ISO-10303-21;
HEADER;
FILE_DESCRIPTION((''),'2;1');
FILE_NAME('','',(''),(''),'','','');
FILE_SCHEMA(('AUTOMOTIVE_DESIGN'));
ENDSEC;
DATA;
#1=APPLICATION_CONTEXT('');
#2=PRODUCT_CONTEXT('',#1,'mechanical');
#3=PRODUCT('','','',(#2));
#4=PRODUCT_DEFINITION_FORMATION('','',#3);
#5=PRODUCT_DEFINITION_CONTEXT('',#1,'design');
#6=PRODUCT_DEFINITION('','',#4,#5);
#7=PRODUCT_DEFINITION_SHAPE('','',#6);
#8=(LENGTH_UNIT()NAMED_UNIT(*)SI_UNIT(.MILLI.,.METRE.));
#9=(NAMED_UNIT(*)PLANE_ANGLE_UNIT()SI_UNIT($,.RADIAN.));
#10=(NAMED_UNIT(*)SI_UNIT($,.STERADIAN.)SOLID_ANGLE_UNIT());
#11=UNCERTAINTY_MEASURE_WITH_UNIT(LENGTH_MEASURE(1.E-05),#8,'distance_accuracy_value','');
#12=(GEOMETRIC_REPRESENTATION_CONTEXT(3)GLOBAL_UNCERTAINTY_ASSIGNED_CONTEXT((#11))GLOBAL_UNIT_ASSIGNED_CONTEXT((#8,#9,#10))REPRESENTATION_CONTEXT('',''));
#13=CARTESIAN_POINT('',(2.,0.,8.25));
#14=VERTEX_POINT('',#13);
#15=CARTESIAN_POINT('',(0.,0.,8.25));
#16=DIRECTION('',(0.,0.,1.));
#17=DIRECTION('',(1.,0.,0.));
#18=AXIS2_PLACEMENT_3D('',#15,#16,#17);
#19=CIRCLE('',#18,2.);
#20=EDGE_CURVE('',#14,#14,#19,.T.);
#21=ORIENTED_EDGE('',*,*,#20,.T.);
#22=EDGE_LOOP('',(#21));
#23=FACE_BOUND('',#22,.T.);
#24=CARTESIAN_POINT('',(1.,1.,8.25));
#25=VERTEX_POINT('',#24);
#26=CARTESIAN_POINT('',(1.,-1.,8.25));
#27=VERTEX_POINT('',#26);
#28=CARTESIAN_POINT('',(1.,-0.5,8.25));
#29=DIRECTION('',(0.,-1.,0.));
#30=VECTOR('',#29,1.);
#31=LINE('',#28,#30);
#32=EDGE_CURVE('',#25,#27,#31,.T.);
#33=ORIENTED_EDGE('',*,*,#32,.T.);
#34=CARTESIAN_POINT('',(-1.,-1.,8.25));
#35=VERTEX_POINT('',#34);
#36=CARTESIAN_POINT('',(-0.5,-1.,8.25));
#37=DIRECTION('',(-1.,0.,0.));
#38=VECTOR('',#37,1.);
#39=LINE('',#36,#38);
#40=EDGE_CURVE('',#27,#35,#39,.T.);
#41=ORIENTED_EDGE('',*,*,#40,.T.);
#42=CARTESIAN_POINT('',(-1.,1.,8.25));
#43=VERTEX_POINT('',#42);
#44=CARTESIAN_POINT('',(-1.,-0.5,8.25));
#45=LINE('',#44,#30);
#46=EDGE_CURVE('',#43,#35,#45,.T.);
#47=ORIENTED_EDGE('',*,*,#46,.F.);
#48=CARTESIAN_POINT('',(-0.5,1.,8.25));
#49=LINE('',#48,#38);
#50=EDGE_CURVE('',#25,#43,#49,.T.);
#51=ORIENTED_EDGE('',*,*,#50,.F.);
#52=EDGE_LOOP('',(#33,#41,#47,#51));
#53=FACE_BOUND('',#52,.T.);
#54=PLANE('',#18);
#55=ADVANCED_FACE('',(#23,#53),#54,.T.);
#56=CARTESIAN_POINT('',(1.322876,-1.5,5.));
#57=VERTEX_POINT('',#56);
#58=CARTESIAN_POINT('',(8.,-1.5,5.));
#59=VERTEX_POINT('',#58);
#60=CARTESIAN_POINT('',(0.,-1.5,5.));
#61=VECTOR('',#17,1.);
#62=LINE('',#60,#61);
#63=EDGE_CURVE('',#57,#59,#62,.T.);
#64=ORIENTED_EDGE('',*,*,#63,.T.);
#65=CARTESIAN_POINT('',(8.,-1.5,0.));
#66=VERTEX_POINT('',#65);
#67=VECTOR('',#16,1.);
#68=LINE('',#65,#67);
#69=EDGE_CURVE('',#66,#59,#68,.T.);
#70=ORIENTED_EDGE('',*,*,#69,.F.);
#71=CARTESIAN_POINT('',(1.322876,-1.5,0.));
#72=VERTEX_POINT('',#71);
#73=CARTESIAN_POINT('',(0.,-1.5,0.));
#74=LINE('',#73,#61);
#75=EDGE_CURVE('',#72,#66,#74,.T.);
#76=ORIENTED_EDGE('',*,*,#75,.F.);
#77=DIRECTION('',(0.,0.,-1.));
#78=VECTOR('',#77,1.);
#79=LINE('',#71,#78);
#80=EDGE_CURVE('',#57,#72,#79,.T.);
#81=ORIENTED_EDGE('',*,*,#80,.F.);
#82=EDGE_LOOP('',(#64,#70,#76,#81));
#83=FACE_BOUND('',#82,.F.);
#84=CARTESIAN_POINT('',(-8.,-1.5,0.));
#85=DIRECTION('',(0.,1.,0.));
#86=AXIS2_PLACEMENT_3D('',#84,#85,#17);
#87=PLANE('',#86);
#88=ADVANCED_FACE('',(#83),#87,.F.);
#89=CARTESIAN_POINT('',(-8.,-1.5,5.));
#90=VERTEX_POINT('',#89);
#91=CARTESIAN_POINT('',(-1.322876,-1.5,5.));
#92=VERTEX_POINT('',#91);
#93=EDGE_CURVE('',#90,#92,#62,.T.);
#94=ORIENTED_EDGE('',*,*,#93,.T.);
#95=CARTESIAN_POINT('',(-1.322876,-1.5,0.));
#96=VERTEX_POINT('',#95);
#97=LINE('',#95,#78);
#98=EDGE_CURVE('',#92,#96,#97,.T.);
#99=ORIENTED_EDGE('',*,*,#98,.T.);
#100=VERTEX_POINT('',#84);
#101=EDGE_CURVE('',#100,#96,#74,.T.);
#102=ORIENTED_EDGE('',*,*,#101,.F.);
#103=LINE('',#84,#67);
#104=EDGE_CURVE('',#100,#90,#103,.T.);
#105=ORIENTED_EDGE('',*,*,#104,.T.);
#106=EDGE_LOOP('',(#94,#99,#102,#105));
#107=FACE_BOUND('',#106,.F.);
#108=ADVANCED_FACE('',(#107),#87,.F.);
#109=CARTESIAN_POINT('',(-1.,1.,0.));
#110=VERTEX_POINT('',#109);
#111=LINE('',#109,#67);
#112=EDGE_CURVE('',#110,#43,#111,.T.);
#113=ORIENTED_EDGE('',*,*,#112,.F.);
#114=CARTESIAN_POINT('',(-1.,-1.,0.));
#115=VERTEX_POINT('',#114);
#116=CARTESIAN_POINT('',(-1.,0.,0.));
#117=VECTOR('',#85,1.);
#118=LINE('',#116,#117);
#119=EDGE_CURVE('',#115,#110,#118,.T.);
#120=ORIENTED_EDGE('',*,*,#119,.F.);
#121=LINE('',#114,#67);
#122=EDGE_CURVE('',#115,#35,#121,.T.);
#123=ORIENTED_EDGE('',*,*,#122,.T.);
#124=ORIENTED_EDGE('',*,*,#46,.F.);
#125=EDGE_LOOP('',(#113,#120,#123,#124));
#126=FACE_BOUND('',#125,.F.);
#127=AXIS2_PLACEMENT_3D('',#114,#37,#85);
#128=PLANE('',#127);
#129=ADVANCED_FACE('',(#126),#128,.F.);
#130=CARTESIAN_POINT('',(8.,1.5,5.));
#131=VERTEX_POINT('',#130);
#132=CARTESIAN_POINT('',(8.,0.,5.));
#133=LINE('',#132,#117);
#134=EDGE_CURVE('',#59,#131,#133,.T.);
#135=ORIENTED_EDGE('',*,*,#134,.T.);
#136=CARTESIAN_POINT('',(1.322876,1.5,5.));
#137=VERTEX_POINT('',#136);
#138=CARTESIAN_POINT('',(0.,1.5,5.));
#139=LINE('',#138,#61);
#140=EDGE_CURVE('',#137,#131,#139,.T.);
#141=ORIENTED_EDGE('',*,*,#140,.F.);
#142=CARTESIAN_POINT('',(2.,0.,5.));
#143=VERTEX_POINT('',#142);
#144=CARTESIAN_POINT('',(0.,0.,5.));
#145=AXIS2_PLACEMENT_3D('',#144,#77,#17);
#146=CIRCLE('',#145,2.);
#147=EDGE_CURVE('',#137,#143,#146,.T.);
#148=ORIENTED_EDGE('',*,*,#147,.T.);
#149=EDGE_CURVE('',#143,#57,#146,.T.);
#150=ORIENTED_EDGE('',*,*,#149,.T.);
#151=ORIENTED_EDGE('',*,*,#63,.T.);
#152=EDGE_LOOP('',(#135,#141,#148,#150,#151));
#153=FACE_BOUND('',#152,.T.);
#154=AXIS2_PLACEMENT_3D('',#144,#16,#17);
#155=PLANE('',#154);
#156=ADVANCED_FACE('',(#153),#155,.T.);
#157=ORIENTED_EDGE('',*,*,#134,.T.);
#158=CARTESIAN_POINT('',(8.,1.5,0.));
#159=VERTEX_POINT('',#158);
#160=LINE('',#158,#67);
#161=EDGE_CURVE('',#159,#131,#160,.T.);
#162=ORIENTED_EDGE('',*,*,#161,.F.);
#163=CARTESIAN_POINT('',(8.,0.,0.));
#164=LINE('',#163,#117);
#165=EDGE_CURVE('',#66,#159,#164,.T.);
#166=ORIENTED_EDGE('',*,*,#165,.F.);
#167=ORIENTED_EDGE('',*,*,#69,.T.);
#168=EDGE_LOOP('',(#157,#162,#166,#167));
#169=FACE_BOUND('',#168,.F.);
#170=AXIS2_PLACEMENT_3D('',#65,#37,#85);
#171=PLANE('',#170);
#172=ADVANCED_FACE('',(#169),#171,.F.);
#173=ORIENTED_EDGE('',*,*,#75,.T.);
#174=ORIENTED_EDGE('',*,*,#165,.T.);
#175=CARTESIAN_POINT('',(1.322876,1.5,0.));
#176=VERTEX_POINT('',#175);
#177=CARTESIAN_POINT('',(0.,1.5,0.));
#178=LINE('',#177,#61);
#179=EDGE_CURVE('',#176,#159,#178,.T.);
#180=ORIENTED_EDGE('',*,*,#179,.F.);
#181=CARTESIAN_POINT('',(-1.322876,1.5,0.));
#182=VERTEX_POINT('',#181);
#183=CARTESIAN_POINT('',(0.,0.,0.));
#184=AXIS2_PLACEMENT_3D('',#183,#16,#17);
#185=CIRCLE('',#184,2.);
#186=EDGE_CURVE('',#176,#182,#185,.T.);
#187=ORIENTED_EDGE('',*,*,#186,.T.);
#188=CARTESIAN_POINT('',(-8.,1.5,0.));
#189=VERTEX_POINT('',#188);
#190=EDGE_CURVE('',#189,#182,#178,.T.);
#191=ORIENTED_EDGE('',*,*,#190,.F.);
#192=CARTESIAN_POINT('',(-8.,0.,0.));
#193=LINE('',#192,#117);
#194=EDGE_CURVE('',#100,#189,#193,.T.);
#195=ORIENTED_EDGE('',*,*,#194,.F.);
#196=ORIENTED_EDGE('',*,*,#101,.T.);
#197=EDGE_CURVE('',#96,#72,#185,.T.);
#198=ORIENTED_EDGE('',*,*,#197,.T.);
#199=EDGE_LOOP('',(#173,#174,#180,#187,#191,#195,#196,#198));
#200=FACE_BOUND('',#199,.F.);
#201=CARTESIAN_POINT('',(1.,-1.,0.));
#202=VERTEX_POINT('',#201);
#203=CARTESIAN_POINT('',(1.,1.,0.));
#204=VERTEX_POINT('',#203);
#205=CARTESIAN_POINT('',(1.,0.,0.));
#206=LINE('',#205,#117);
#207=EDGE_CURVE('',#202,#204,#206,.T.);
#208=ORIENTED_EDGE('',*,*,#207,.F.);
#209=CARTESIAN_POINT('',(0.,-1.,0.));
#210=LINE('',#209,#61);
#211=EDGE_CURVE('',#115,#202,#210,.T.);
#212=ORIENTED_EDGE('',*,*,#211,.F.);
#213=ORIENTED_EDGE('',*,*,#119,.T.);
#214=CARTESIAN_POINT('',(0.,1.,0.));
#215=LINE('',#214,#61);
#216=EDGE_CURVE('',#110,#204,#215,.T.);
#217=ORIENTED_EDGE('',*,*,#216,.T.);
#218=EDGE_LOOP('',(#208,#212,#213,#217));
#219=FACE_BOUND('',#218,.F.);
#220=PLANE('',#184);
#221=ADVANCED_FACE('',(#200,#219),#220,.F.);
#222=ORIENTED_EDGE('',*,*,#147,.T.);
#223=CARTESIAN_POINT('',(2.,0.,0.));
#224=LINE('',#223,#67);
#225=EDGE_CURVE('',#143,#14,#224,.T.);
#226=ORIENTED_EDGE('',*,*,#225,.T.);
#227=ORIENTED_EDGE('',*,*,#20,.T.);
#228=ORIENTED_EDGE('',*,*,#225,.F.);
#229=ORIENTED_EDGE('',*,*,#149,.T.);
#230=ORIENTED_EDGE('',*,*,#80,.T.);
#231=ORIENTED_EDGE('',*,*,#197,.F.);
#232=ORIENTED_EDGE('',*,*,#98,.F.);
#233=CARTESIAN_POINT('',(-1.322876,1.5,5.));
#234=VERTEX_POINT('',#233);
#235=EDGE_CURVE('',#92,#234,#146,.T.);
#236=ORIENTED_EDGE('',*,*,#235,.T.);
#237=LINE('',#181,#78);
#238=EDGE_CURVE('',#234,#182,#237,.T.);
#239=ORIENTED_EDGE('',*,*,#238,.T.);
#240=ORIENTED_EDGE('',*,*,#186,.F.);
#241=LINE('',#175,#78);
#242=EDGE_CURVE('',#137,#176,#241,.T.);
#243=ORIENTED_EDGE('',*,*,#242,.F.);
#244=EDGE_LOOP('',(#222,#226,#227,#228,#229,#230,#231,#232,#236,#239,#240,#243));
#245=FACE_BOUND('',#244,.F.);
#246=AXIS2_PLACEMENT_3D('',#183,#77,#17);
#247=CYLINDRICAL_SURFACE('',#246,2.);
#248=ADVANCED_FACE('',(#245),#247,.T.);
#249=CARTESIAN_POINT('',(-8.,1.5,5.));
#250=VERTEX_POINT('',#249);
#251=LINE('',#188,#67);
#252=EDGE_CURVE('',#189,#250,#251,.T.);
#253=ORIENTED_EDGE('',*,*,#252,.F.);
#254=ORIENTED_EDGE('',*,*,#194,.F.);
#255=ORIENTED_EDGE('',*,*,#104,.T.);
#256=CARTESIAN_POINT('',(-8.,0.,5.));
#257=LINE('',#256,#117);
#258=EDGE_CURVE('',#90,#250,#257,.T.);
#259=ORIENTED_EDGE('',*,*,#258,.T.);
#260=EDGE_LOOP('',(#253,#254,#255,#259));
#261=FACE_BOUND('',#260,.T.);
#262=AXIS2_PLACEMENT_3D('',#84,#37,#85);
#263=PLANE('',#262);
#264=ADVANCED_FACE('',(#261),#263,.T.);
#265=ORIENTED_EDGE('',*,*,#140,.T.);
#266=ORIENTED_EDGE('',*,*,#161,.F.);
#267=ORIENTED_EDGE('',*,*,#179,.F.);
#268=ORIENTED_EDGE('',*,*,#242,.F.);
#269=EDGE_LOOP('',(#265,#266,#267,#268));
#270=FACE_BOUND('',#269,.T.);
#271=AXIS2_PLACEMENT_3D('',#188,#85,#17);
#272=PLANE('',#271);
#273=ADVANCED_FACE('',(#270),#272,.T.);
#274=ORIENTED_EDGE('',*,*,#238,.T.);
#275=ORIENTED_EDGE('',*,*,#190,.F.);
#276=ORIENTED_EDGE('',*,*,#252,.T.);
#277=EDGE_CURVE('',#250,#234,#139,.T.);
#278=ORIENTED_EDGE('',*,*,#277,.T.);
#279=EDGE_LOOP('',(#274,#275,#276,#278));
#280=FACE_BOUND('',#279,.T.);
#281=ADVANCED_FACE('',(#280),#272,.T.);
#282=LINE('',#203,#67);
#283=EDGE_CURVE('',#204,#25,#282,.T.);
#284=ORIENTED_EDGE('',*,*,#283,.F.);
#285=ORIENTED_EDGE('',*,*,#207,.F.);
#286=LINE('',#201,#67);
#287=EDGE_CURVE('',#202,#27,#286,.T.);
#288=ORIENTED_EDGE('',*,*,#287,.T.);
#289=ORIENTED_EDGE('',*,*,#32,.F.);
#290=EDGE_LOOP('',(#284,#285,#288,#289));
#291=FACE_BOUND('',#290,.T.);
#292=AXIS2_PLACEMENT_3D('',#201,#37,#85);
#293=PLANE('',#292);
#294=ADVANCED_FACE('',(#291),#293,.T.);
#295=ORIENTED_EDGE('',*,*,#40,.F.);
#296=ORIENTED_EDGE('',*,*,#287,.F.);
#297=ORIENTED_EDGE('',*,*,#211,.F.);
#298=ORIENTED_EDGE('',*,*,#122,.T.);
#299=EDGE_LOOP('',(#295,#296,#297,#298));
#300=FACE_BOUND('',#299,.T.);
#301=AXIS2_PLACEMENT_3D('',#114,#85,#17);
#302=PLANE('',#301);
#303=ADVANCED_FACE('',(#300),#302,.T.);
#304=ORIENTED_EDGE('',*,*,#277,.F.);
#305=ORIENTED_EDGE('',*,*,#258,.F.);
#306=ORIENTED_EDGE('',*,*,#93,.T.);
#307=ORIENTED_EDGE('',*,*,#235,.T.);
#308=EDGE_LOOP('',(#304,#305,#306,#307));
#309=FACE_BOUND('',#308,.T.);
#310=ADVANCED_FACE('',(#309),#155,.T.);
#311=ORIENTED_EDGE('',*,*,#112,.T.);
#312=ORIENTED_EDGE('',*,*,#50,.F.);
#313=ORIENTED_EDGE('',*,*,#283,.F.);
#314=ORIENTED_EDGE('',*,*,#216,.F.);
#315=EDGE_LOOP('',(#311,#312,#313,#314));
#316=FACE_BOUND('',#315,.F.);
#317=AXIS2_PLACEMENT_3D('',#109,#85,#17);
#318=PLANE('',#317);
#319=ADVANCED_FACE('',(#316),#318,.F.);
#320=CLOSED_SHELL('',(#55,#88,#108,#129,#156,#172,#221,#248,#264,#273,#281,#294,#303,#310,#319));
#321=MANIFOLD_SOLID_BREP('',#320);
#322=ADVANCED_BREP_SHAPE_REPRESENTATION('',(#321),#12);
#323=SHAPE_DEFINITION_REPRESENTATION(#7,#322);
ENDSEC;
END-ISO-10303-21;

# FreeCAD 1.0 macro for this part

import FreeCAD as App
import Part
import Sketcher

V = App.Vector


def add_polygon(sketch, points):
    """Adds a closed chain of lines whose ends are joined by coincident constraints."""
    first, n = sketch.GeometryCount, len(points)
    for a, b in zip(points, points[1:] + points[:1]):
        sketch.addGeometry(Part.LineSegment(App.Vector(*a, 0), App.Vector(*b, 0)), False)
    for i in range(n):
        sketch.addConstraint(Sketcher.Constraint("Coincident", first + i, 2, first + (i + 1) % n, 1))

doc = App.newDocument("Part")
body = doc.addObject("PartDesign::Body", "Body")

# Sketch on XY plane
sketch1 = body.newObject("Sketcher::SketchObject", "Sketch")
sketch1.AttachmentSupport = (doc.getObject("XY_Plane"), [""])
sketch1.MapMode = "FlatFace"
add_polygon(sketch1, [(-1, 1), (-1, -1), (1, -1), (1, 1)])  # lines 0-3
sketch1.addConstraint(Sketcher.Constraint("Vertical", 0))
sketch1.addConstraint(Sketcher.Constraint("Horizontal", 1))
sketch1.addConstraint(Sketcher.Constraint("Vertical", 2))
sketch1.addConstraint(Sketcher.Constraint("Horizontal", 3))
sketch1.addConstraint(Sketcher.Constraint("Symmetric", 0, 2, 2, 2, -1, 1))
sketch1.addConstraint(Sketcher.Constraint("Equal", 3, 0))
sketch1.addConstraint(Sketcher.Constraint("DistanceX", 1, 1, 1, 2, 2.0))
pad1 = body.newObject("PartDesign::Pad", "Pad")
pad1.Profile = sketch1
pad1.Length = 10
body2 = doc.addObject("PartDesign::Body", "Body001")

# Sketch on XY plane
sketch2 = body2.newObject("Sketcher::SketchObject", "Sketch001")
sketch2.AttachmentSupport = (doc.getObject("XY_Plane001"), [""])
sketch2.MapMode = "FlatFace"
add_polygon(sketch2, [(-8, 1.5), (-8, -1.5), (8, -1.5), (8, 1.5)])  # lines 0-3
sketch2.addConstraint(Sketcher.Constraint("Vertical", 0))
sketch2.addConstraint(Sketcher.Constraint("Horizontal", 1))
sketch2.addConstraint(Sketcher.Constraint("Vertical", 2))
sketch2.addConstraint(Sketcher.Constraint("Horizontal", 3))
sketch2.addConstraint(Sketcher.Constraint("Symmetric", 0, 2, 2, 2, -1, 1))
sketch2.addConstraint(Sketcher.Constraint("DistanceX", 1, 1, 1, 2, 16.0))
sketch2.addConstraint(Sketcher.Constraint("DistanceY", 0, 2, 0, 1, 3.0))
pad2 = body2.newObject("PartDesign::Pad", "Pad001")
pad2.Profile = sketch2
pad2.Length = 5
body3 = doc.addObject("PartDesign::Body", "Body002")

# Sketch on XY plane
sketch3 = body3.newObject("Sketcher::SketchObject", "Sketch002")
sketch3.AttachmentSupport = (doc.getObject("XY_Plane002"), [""])
sketch3.MapMode = "FlatFace"
sketch3.addGeometry(Part.Circle(V(0, 0, 0), V(0, 0, 1), 2), False)
sketch3.addConstraint(Sketcher.Constraint("Coincident", 0, 3, -1, 1))
sketch3.addConstraint(Sketcher.Constraint("Diameter", 0, 4.0))
pad3 = body3.newObject("PartDesign::Pad", "Pad002")
pad3.Profile = sketch3
pad3.Length = 8.25
doc.recompute()

boolean = body3.newObject("PartDesign::Boolean", "Boolean")
boolean.Type = "Fuse"
boolean.addObjects([body2])
doc.recompute()

boolean2 = body3.newObject("PartDesign::Boolean", "Boolean001")
boolean2.Type = "Cut"
boolean2.addObjects([body])

doc.recompute()
